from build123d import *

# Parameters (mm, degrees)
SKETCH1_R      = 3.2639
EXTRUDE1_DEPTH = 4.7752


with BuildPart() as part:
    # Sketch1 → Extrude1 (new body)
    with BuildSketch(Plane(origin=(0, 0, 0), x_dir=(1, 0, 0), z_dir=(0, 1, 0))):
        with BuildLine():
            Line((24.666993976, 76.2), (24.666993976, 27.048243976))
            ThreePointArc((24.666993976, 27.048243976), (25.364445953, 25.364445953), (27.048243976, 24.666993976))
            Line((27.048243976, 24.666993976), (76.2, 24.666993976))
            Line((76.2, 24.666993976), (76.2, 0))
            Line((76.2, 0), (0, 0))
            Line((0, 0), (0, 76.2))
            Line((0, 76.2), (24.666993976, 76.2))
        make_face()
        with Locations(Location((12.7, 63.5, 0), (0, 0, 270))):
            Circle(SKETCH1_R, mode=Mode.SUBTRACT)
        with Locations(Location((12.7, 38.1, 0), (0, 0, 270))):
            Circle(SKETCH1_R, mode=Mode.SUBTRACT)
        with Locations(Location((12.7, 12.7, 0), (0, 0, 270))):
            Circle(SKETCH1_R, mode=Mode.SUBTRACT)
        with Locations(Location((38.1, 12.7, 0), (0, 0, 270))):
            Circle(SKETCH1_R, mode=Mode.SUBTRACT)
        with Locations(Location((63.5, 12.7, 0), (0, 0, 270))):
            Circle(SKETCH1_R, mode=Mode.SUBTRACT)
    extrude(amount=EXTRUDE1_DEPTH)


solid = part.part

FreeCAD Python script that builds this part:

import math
import FreeCAD as App
import Part
import Sketcher
from FreeCAD import Vector
Q = App.Units.Quantity

doc = App.newDocument("Part")
body = doc.addObject("PartDesign::Body", "Body")

# Sketch on XZ plane
sketch1 = body.newObject("Sketcher::SketchObject", "Sketch")
sketch1.AttachmentSupport = (doc.getObject("XZ_Plane"), [""])
sketch1.MapMode = "FlatFace"
sketch1.addGeometry(Part.LineSegment(Vector(24.7, -27, 0), Vector(24.7, -76.2, 0)), False)
sketch1.addGeometry(Part.LineSegment(Vector(24.7, -76.2, 0), Vector(0, -76.2, 0)), False)
sketch1.addGeometry(Part.LineSegment(Vector(0, -76.2, 0), Vector(0, 0, 0)), False)
sketch1.addGeometry(Part.LineSegment(Vector(0, 0, 0), Vector(76.2, 0, 0)), False)
sketch1.addGeometry(Part.LineSegment(Vector(76.2, 0, 0), Vector(76.2, -24.7, 0)), False)
sketch1.addGeometry(Part.LineSegment(Vector(76.2, -24.7, 0), Vector(27, -24.7, 0)), False)
sketch1.addGeometry(Part.ArcOfCircle(Part.Circle(Vector(27, -27, 0), Vector(0, 0, 1), 2.4), math.radians(90), math.radians(180)), False)
sketch1.addGeometry(Part.Circle(Vector(63.5, -12.7, 0), Vector(0, 0, 1), 3.3), False)
sketch1.addGeometry(Part.Circle(Vector(38.1, -12.7, 0), Vector(0, 0, 1), 3.3), False)
sketch1.addGeometry(Part.Circle(Vector(12.7, -12.7, 0), Vector(0, 0, 1), 3.3), False)
sketch1.addGeometry(Part.Circle(Vector(12.7, -38.1, 0), Vector(0, 0, 1), 3.3), False)
sketch1.addGeometry(Part.Circle(Vector(12.7, -63.5, 0), Vector(0, 0, 1), 3.3), False)
sketch1.addConstraint(Sketcher.Constraint("Coincident", 0, 2, 1, 1))
sketch1.addConstraint(Sketcher.Constraint("Coincident", 1, 2, 2, 1))
sketch1.addConstraint(Sketcher.Constraint("Coincident", 2, 2, 3, 1))
sketch1.addConstraint(Sketcher.Constraint("Coincident", 3, 2, 4, 1))
sketch1.addConstraint(Sketcher.Constraint("Coincident", 4, 2, 5, 1))
sketch1.addConstraint(Sketcher.Constraint("Tangent", 5, 2, 6, 1))
sketch1.addConstraint(Sketcher.Constraint("Tangent", 6, 2, 0, 1))
sketch1.addConstraint(Sketcher.Constraint("Vertical", 0))
sketch1.addConstraint(Sketcher.Constraint("Horizontal", 1))
sketch1.addConstraint(Sketcher.Constraint("Vertical", 2))
sketch1.addConstraint(Sketcher.Constraint("Horizontal", 3))
sketch1.addConstraint(Sketcher.Constraint("Vertical", 4))
sketch1.addConstraint(Sketcher.Constraint("Horizontal", 5))
sketch1.addConstraint(Sketcher.Constraint("Coincident", 2, 2, -1, 1))
sketch1.addConstraint(Sketcher.Constraint("Equal", 7, 8))
sketch1.addConstraint(Sketcher.Constraint("Equal", 8, 9))
sketch1.addConstraint(Sketcher.Constraint("Equal", 9, 10))
sketch1.addConstraint(Sketcher.Constraint("Equal", 10, 11))
sketch1.addConstraint(Sketcher.Constraint("Horizontal", 7, 3, 8, 3))
sketch1.addConstraint(Sketcher.Constraint("Horizontal", 8, 3, 9, 3))
sketch1.addConstraint(Sketcher.Constraint("Vertical", 9, 3, 10, 3))
sketch1.addConstraint(Sketcher.Constraint("Vertical", 10, 3, 11, 3))
sketch1.addConstraint(Sketcher.Constraint("Equal", 5, 0))
sketch1.addConstraint(Sketcher.Constraint("Equal", 3, 2))
sketch1.addConstraint(Sketcher.Constraint("DistanceX", 3, 1, 3, 2, Q("3 in")))
sketch1.addConstraint(Sketcher.Constraint("Diameter", 7, Q("0.257 in")))
sketch1.addConstraint(Sketcher.Constraint("Radius", 6, Q("0.09375 in")))
sketch1.addConstraint(Sketcher.Constraint("DistanceX", 8, 3, 7, 3, Q("1 in")))
sketch1.addConstraint(Sketcher.Constraint("DistanceX", 9, 3, 8, 3, Q("1 in")))
sketch1.addConstraint(Sketcher.Constraint("DistanceY", 10, 3, 9, 3, Q("1 in")))
sketch1.addConstraint(Sketcher.Constraint("DistanceY", 11, 3, 10, 3, Q("1 in")))
sketch1.addConstraint(Sketcher.Constraint("DistanceX", -1, 1, 7, 3, Q("2.5 in")))
sketch1.addConstraint(Sketcher.Constraint("DistanceY", 7, 3, -1, 1, Q("0.5 in")))
sketch1.addConstraint(Sketcher.Constraint("DistanceX", 1, 2, 1, 1, Q("24.666994 mm")))
pad1 = body.newObject("PartDesign::Pad", "Pad")
pad1.Profile = sketch1
pad1.Length = Q("0.188 in")
pad1.Reversed = True

doc.recompute()
